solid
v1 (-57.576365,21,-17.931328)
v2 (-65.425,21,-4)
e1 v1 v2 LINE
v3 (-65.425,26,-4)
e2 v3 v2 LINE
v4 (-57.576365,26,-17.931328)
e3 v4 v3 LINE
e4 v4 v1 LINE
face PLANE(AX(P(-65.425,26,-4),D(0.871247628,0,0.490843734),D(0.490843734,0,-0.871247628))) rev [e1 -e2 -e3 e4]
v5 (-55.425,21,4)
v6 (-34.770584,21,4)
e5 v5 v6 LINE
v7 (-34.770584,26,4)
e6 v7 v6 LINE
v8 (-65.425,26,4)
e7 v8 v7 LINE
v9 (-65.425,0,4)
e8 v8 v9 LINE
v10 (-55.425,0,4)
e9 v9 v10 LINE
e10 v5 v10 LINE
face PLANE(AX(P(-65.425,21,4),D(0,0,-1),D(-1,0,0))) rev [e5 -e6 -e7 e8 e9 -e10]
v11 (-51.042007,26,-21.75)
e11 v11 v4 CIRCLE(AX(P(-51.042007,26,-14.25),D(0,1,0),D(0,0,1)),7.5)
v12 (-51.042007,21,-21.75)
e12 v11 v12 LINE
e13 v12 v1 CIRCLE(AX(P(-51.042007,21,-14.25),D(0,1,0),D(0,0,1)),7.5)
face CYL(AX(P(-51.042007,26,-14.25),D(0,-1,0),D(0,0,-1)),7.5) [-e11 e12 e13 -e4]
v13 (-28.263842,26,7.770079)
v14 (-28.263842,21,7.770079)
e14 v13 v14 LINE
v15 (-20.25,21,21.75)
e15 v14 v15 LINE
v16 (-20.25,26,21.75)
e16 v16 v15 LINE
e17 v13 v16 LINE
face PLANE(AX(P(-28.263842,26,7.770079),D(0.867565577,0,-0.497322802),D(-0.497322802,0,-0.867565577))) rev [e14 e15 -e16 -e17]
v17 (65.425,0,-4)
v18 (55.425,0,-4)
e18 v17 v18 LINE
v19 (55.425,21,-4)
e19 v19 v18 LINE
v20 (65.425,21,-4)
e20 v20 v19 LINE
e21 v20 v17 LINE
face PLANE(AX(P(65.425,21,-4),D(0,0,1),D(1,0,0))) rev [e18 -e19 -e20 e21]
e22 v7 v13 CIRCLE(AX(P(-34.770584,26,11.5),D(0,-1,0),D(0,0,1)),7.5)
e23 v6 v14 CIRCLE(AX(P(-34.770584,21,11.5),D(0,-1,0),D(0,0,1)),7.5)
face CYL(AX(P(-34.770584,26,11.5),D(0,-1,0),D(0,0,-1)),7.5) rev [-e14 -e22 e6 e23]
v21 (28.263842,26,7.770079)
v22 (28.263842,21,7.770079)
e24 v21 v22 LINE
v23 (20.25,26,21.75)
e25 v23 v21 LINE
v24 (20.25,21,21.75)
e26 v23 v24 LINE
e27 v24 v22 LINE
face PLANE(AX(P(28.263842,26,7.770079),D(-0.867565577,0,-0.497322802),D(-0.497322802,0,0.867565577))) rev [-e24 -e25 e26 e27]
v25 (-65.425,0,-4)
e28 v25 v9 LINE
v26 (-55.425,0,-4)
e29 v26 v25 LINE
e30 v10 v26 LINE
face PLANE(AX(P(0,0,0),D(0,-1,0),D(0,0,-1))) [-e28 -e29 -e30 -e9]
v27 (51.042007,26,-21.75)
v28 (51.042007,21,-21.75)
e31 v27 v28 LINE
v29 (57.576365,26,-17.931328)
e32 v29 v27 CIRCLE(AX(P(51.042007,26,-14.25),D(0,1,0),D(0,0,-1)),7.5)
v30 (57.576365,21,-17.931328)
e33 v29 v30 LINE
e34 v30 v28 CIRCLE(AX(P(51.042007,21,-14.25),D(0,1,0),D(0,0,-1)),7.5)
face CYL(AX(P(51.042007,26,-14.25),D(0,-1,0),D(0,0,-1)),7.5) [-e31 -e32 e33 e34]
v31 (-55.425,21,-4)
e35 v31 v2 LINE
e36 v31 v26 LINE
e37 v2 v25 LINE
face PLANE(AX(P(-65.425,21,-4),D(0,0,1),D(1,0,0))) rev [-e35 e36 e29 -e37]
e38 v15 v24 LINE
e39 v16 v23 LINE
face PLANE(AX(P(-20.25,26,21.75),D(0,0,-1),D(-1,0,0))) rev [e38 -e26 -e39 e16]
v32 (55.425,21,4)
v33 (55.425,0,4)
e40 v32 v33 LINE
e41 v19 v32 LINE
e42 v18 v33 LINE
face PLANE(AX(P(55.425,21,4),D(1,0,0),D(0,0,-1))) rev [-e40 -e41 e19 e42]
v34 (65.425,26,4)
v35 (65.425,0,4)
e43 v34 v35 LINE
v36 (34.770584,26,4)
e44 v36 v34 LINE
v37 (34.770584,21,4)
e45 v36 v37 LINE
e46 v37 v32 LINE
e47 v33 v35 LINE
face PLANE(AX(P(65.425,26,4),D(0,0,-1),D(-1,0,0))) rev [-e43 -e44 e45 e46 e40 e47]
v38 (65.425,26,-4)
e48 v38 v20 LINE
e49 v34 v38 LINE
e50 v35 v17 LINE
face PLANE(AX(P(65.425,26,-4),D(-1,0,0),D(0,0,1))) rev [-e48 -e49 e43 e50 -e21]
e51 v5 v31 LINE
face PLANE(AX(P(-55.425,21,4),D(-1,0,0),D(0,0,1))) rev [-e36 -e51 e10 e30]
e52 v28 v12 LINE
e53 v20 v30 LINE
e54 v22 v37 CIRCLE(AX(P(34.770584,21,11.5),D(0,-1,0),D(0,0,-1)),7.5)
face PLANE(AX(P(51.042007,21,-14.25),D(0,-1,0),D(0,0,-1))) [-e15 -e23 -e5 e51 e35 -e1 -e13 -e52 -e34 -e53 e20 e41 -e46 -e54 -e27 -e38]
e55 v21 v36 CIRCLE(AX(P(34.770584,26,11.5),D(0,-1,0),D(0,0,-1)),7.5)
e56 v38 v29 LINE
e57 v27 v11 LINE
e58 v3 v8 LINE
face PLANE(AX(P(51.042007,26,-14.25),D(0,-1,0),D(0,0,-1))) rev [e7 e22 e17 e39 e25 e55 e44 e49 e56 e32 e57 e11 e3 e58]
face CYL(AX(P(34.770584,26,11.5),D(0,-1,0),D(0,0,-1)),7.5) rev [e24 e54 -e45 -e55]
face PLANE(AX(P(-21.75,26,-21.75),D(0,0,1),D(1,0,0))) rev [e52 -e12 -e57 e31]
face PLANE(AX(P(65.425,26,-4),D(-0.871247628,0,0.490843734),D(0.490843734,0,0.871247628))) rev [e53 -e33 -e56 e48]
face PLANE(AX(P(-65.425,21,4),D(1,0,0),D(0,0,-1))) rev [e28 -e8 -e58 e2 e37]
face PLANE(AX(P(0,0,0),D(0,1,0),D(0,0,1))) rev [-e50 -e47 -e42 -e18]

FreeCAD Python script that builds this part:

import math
import FreeCAD as App
import Part
import Sketcher
from FreeCAD import Vector


def add_polygon(sketch, points):
    """Adds a closed chain of lines whose ends are joined by coincident constraints."""
    first, n = sketch.GeometryCount, len(points)
    for a, b in zip(points, points[1:] + points[:1]):
        sketch.addGeometry(Part.LineSegment(App.Vector(*a, 0), App.Vector(*b, 0)), False)
    for i in range(n):
        sketch.addConstraint(Sketcher.Constraint("Coincident", first + i, 2, first + (i + 1) % n, 1))

doc = App.newDocument("Part")
body = doc.addObject("PartDesign::Body", "Body")

# Sketch on XZ plane
sketch1 = body.newObject("Sketcher::SketchObject", "Sketch")
sketch1.AttachmentSupport = (doc.getObject("XZ_Plane"), [""])
sketch1.MapMode = "FlatFace"
add_polygon(sketch1, [(-65, -4), (-65, 4), (-55, 4), (-55, -4)])  # lines 0-3
sketch1.addConstraint([
    Sketcher.Constraint("Vertical", 0),
    Sketcher.Constraint("Horizontal", 1),
    Sketcher.Constraint("Vertical", 2),
    Sketcher.Constraint("Horizontal", 3),
    Sketcher.Constraint("DistanceX", 1, 1, 1, 2, 10.0),
    Sketcher.Constraint("DistanceY", 0, 1, 0, 2, 8.0),
    Sketcher.Constraint("DistanceY", -1, 1, 0, 2, 4.0),
    Sketcher.Constraint("DistanceX", 0, 2, -1, 1, 65.425),
])
pad1 = body.newObject("PartDesign::Pad", "Pad")
pad1.Profile = sketch1
pad1.Length = 21
pad1.Reversed = True
body2 = doc.addObject("PartDesign::Body", "Body001")

# Sketch on XZ plane
sketch2 = body2.newObject("Sketcher::SketchObject", "Sketch001")
sketch2.AttachmentSupport = (doc.getObject("XZ_Plane001"), [""])
sketch2.MapMode = "FlatFace"
add_polygon(sketch2, [(55, -4), (55, 4), (65, 4), (65, -4)])  # lines 0-3
sketch2.addConstraint([
    Sketcher.Constraint("Vertical", 0),
    Sketcher.Constraint("Horizontal", 1),
    Sketcher.Constraint("Vertical", 2),
    Sketcher.Constraint("Horizontal", 3),
    Sketcher.Constraint("DistanceX", 1, 1, 1, 2, 10.0),
    Sketcher.Constraint("DistanceY", 0, 1, 0, 2, 8.0),
    Sketcher.Constraint("DistanceY", -1, 1, 0, 2, 4.0),
    Sketcher.Constraint("DistanceX", -1, 1, 0, 2, 55.425),
])
pad2 = body2.newObject("PartDesign::Pad", "Pad001")
pad2.Profile = sketch2
pad2.Length = 21
pad2.Reversed = True
body.AllowCompound = True
doc.recompute()

boolean = body.newObject("PartDesign::Boolean", "Boolean")
boolean.Type = "Fuse"
boolean.addObjects([body2])

# Sketch on XZ plane
sketch3 = body.newObject("Sketcher::SketchObject", "Sketch002")
sketch3.AttachmentSupport = (doc.getObject("XZ_Plane"), [""])
sketch3.MapMode = "FlatFace"
sketch3.AttachmentOffset = App.Placement(Vector(0, 0, -21), App.Rotation())
sketch3.addGeometry([
    Part.ArcOfCircle(Part.Circle(Vector(51, -14, 0), Vector(0, 0, 1), 8), math.radians(-90), math.radians(-29)),  # 0
    Part.LineSegment(Vector(51, -22, 0), Vector(-51, -22, 0)),  # 1
    Part.ArcOfCircle(Part.Circle(Vector(-51, -14, 0), Vector(0, 0, 1), 8), math.radians(-151), math.radians(-90)),  # 2
    Part.LineSegment(Vector(-58, -18, 0), Vector(-65, -4, 0)),  # 3
    Part.LineSegment(Vector(-65, -4, 0), Vector(-65, 4, 0)),  # 4
    Part.LineSegment(Vector(-65, 4, 0), Vector(-35, 4, 0)),  # 5
    Part.ArcOfCircle(Part.Circle(Vector(-35, 11, 0), Vector(0, 0, 1), 7), math.radians(-90), math.radians(-30)),  # 6
    Part.LineSegment(Vector(-28, 8, 0), Vector(-20, 22, 0)),  # 7
    Part.LineSegment(Vector(-20, 22, 0), Vector(20, 22, 0)),  # 8
    Part.LineSegment(Vector(20, 22, 0), Vector(28, 8, 0)),  # 9
    Part.ArcOfCircle(Part.Circle(Vector(35, 11, 0), Vector(0, 0, 1), 7), math.radians(-150), math.radians(-90)),  # 10
    Part.LineSegment(Vector(35, 4, 0), Vector(65, 4, 0)),  # 11
    Part.LineSegment(Vector(65, 4, 0), Vector(65, -4, 0)),  # 12
    Part.LineSegment(Vector(65, -4, 0), Vector(58, -18, 0)),  # 13
], False)
sketch3.addConstraint([
    Sketcher.Constraint("Tangent", 0, 1, 1, 1),
    Sketcher.Constraint("Tangent", 1, 2, 2, 2),
    Sketcher.Constraint("Tangent", 2, 1, 3, 1),
    Sketcher.Constraint("Coincident", 3, 2, 4, 1),
    Sketcher.Constraint("Coincident", 4, 2, 5, 1),
    Sketcher.Constraint("Tangent", 5, 2, 6, 1),
    Sketcher.Constraint("Tangent", 6, 2, 7, 1),
    Sketcher.Constraint("Coincident", 7, 2, 8, 1),
    Sketcher.Constraint("Coincident", 8, 2, 9, 1),
    Sketcher.Constraint("Tangent", 9, 2, 10, 1),
    Sketcher.Constraint("Tangent", 10, 2, 11, 1),
    Sketcher.Constraint("Coincident", 11, 2, 12, 1),
    Sketcher.Constraint("Coincident", 12, 2, 13, 1),
    Sketcher.Constraint("Tangent", 13, 2, 0, 2),
    Sketcher.Constraint("Horizontal", 1),
    Sketcher.Constraint("Vertical", 4),
    Sketcher.Constraint("Horizontal", 5),
    Sketcher.Constraint("Horizontal", 8),
    Sketcher.Constraint("Horizontal", 11),
    Sketcher.Constraint("Vertical", 12),
    Sketcher.Constraint("Equal", 0, 2),
    Sketcher.Constraint("Equal", 2, 6),
    Sketcher.Constraint("Equal", 6, 10),
    Sketcher.Constraint("Symmetric", 3, 2, 11, 2, -1, 1),
    Sketcher.Constraint("Symmetric", 6, 3, 10, 3, -2),
    Sketcher.Constraint("Symmetric", 2, 1, 13, 2, -2),
    Sketcher.Constraint("Horizontal", 6, 2, 9, 2),
    Sketcher.Constraint("Radius", 0, 7.5),
    Sketcher.Constraint("DistanceY", 4, 1, 4, 2, 8.0),
    Sketcher.Constraint("DistanceX", 8, 1, 8, 2, 40.5),
    Sketcher.Constraint("DistanceY", 2, 3, 7, 2, 36.0),
    Sketcher.Constraint("DistanceY", 0, 3, -1, 1, 14.25),
    Sketcher.Constraint("DistanceX", 3, 2, -1, 1, 65.425),
    Sketcher.Constraint("Distance", 3, 15.99009),
    Sketcher.Constraint("DistanceX", 5, 1, 5, 2, 30.654416),
])
pad3 = body.newObject("PartDesign::Pad", "Pad002")
pad3.Profile = sketch3
pad3.Length = 5
pad3.Reversed = True

doc.recompute()
